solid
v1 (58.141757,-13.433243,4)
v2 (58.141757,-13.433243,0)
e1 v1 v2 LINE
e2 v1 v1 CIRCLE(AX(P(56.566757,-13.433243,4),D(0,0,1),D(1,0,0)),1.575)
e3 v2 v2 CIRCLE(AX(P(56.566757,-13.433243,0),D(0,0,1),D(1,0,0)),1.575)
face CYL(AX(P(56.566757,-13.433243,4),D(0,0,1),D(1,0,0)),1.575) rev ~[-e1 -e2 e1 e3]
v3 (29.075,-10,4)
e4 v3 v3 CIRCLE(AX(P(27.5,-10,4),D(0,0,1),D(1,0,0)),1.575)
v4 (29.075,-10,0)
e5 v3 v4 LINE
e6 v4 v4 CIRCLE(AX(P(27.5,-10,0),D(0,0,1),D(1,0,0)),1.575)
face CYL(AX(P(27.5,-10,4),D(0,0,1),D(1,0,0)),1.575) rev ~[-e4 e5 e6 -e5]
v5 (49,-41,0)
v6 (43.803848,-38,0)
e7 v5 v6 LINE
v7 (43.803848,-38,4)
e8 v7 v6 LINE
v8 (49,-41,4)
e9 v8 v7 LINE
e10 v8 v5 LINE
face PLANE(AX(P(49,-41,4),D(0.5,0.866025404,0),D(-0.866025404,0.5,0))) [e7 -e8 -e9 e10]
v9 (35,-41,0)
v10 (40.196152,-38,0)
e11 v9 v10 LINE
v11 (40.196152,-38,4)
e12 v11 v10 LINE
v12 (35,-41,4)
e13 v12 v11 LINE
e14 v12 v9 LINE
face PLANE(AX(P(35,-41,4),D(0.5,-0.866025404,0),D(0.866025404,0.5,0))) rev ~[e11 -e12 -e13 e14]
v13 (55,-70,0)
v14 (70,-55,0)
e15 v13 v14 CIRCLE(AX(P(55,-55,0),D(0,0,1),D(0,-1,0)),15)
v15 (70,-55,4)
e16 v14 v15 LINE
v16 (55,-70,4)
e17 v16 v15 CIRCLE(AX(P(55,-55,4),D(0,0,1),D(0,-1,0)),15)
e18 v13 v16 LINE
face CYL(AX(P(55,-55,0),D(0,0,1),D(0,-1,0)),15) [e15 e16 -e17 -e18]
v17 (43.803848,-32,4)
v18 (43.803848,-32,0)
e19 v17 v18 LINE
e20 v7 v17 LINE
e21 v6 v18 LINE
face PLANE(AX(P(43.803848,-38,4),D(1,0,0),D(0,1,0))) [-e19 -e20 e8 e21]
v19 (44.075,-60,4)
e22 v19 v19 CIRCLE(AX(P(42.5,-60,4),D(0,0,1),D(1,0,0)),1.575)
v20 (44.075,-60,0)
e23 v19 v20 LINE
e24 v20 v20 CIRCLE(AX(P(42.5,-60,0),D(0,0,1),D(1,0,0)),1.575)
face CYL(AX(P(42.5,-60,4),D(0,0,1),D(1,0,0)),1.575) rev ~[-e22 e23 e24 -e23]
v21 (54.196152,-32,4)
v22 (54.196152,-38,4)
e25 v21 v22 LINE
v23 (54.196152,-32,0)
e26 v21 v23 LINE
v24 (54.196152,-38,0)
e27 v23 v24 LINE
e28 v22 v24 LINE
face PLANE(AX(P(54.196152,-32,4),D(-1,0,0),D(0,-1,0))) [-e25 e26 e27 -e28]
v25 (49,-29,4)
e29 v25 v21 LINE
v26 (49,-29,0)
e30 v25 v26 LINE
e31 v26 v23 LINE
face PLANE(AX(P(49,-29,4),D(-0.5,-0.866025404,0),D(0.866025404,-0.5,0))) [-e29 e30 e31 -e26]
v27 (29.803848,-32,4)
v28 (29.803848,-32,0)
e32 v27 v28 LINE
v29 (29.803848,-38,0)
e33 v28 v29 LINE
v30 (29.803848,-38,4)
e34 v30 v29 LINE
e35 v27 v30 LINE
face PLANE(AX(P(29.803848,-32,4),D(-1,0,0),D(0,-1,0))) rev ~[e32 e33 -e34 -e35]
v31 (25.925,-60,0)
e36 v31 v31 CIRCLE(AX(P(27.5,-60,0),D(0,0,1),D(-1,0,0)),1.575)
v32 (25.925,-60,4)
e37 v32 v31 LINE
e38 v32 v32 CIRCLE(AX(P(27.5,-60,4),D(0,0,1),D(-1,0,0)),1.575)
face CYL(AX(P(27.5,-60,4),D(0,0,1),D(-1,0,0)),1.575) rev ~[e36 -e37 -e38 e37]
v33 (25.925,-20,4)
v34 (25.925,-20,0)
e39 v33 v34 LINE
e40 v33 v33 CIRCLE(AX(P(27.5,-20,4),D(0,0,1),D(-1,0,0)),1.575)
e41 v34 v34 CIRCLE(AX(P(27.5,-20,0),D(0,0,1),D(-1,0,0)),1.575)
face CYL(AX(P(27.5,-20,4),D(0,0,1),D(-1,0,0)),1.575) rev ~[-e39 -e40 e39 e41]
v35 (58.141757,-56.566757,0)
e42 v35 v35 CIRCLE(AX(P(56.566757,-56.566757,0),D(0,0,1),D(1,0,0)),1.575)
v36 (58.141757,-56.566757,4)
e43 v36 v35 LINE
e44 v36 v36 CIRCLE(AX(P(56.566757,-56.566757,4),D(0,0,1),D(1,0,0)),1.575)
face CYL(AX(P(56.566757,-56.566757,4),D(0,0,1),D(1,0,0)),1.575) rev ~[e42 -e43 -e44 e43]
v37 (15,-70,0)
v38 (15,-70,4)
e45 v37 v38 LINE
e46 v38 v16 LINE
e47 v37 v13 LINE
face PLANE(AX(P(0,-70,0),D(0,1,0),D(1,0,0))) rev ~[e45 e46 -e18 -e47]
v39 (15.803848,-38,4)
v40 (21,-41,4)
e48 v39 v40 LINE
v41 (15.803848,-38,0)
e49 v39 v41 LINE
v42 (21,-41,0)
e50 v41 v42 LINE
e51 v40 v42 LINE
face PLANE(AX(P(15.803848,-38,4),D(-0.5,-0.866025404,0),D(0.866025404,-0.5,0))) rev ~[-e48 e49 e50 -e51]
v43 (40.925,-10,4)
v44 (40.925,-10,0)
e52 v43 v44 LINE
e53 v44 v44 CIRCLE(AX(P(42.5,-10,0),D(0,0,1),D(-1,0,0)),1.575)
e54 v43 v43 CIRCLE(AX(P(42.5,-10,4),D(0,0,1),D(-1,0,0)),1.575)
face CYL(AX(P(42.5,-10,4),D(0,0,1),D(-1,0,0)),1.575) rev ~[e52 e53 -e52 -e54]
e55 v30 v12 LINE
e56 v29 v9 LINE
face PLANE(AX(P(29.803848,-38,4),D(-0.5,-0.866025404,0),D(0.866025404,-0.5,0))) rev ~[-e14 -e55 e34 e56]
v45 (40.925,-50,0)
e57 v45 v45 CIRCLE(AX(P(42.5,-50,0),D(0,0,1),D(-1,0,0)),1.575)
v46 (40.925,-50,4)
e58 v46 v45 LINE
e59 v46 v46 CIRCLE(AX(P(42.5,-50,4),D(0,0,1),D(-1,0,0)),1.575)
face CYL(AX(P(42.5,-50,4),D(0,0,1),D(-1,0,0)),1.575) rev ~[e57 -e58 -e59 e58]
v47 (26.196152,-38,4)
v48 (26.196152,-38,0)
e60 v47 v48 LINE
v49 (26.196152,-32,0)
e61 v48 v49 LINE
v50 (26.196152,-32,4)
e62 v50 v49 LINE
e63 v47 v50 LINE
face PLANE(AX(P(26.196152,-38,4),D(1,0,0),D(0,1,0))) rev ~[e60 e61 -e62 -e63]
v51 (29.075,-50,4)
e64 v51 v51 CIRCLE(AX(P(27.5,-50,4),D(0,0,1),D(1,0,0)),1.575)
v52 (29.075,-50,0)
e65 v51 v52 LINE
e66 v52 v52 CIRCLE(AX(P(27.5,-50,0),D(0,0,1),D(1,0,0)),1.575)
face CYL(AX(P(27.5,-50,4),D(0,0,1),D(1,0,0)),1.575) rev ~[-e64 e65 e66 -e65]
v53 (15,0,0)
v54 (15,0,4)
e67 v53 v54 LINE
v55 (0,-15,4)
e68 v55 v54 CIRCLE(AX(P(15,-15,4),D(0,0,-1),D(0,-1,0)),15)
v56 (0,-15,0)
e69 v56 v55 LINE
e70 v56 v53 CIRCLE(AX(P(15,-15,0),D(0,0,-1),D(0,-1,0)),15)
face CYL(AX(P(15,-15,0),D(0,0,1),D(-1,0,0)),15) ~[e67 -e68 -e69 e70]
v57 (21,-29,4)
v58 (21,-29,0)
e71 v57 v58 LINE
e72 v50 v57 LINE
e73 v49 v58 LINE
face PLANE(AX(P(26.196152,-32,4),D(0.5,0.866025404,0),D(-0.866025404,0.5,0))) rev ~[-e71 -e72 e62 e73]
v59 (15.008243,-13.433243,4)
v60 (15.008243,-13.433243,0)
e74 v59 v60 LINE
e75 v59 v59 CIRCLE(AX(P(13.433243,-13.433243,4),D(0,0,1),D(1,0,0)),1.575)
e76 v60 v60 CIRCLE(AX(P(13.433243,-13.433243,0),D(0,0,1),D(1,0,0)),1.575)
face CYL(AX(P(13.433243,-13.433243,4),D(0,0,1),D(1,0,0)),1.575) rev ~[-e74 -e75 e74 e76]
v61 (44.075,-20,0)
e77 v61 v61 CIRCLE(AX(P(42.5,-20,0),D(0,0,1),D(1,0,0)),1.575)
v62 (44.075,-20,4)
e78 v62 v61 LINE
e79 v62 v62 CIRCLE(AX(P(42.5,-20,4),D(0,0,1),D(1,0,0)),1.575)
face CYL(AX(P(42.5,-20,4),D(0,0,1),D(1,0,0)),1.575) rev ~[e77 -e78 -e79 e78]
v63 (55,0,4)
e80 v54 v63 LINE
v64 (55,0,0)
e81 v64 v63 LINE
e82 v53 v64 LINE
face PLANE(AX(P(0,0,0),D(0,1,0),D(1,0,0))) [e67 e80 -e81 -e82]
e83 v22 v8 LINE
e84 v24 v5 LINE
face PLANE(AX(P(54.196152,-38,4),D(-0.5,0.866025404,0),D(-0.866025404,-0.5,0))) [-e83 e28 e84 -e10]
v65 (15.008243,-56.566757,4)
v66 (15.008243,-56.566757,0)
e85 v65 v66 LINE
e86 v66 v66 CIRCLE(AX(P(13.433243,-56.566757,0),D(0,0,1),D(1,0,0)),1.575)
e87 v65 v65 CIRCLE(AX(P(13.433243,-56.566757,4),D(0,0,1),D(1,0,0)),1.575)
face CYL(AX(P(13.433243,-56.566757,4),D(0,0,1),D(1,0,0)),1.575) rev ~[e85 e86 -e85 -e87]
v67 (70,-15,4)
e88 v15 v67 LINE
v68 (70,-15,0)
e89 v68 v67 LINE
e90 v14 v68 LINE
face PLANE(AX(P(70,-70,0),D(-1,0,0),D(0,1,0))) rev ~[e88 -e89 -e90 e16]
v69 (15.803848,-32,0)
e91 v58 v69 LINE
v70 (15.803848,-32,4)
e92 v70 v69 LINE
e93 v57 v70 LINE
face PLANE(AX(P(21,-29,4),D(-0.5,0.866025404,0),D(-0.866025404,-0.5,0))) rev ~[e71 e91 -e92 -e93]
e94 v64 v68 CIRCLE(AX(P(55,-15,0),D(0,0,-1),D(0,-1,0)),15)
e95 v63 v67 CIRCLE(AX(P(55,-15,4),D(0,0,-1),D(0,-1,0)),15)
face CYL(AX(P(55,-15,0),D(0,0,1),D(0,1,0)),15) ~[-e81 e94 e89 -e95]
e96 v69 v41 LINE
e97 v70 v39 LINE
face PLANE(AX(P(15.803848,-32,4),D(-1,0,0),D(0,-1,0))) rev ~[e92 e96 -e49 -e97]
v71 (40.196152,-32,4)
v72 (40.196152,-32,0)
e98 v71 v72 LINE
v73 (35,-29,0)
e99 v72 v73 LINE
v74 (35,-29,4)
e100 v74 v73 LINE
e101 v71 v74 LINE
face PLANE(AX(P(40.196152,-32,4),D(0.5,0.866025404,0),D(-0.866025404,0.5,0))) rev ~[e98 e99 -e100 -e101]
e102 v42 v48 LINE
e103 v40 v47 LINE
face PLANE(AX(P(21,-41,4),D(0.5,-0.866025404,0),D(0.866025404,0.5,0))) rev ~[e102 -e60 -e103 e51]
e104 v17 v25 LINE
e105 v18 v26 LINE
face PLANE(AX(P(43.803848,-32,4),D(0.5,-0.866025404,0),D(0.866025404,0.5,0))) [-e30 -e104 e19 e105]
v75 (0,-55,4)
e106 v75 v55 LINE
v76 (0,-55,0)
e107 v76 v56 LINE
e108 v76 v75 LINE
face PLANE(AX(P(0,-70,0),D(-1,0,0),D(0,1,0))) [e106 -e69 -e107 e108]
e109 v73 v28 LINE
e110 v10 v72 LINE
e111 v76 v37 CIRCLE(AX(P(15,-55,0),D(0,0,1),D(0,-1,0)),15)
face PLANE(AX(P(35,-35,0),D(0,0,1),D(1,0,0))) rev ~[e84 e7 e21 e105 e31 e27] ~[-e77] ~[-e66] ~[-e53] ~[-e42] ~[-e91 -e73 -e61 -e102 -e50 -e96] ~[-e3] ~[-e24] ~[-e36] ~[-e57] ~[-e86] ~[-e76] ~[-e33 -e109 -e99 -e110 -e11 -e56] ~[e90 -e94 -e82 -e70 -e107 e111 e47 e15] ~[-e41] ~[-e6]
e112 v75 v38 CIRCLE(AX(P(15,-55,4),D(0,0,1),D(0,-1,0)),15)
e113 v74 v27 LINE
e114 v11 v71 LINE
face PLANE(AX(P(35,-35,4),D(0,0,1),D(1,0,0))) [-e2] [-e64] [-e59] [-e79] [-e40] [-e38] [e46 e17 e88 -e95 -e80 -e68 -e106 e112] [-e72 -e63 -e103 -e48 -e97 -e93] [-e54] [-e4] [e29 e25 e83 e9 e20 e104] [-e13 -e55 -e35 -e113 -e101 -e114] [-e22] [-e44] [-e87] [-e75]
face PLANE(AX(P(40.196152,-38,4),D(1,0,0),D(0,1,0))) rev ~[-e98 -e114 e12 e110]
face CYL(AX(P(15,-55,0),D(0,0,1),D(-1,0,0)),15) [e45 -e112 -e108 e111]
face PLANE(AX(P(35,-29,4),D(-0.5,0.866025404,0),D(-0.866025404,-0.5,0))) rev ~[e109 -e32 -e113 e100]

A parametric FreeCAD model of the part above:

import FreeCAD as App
import Part
import Sketcher

V = App.Vector
Q = App.Units.Quantity


def edges_at(feature, points):
    """Names of the edges that pass closest to the given points."""
    edges = feature.Shape.Edges
    near = lambda p: min(range(len(edges)), key=lambda i: edges[i].distToShape(Part.Vertex(*p))[0])
    return sorted({f"Edge{near(p) + 1}" for p in points})


def add_polygon(sketch, points):
    """Adds a closed chain of lines whose ends are joined by coincident constraints."""
    first, n = sketch.GeometryCount, len(points)
    for a, b in zip(points, points[1:] + points[:1]):
        sketch.addGeometry(Part.LineSegment(App.Vector(*a, 0), App.Vector(*b, 0)), False)
    for i in range(n):
        sketch.addConstraint(Sketcher.Constraint("Coincident", first + i, 2, first + (i + 1) % n, 1))

doc = App.newDocument("Part")
body = doc.addObject("PartDesign::Body", "Body")

# Sketch on XY plane
sketch1 = body.newObject("Sketcher::SketchObject", "Sketch")
sketch1.AttachmentSupport = (doc.getObject("XY_Plane"), [""])
sketch1.MapMode = "FlatFace"
add_polygon(sketch1, [(0, 0), (0, -70), (70, -70), (70, 0)])  # lines 0-3
sketch1.addConstraint([
    Sketcher.Constraint("Vertical", 0),
    Sketcher.Constraint("Horizontal", 1),
    Sketcher.Constraint("Vertical", 2),
    Sketcher.Constraint("Horizontal", 3),
    Sketcher.Constraint("Coincident", 3, 2, -1, 1),
    Sketcher.Constraint("Equal", 3, 0),
    Sketcher.Constraint("DistanceX", 1, 1, 1, 2, Q("70 mm")),
])
pad1 = body.newObject("PartDesign::Pad", "Pad")
pad1.Profile = sketch1
pad1.Length = 4

# Sketch on XY plane
sketch2 = body.newObject("Sketcher::SketchObject", "Sketch001")
sketch2.AttachmentSupport = (doc.getObject("XY_Plane"), [""])
sketch2.MapMode = "FlatFace"
sketch2.AttachmentOffset = App.Placement(V(0, 0, 4), App.Rotation())
sketch2.addGeometry(Part.Circle(V(27.5, -10, 0), V(0, 0, 1), 1.575), False)  # 0
sketch2.addGeometry(Part.Circle(V(42.5, -10, 0), V(0, 0, 1), 1.575), False)  # 1
sketch2.addGeometry(Part.Circle(V(42.5, -20, 0), V(0, 0, 1), 1.575), False)  # 2
sketch2.addGeometry(Part.Circle(V(27.5, -20, 0), V(0, 0, 1), 1.575), False)  # 3
sketch2.addGeometry(Part.Circle(V(27.5, -50, 0), V(0, 0, 1), 1.575), False)  # 4
sketch2.addGeometry(Part.Circle(V(42.5, -50, 0), V(0, 0, 1), 1.575), False)  # 5
sketch2.addGeometry(Part.Circle(V(42.5, -60, 0), V(0, 0, 1), 1.575), False)  # 6
sketch2.addGeometry(Part.Circle(V(27.5, -60, 0), V(0, 0, 1), 1.575), False)  # 7
sketch2.addGeometry(Part.Circle(V(13.433243, -13.433243, 0), V(0, 0, 1), 1.575), False)  # 8
sketch2.addGeometry(Part.Circle(V(56.566757, -13.433243, 0), V(0, 0, 1), 1.575), False)  # 9
sketch2.addGeometry(Part.Circle(V(56.566757, -56.566757, 0), V(0, 0, 1), 1.575), False)  # 10
sketch2.addGeometry(Part.Circle(V(13.433243, -56.566757, 0), V(0, 0, 1), 1.575), False)  # 11
add_polygon(sketch2, [(21, -29), (15.803848, -32), (15.803848, -38), (21, -41), (26.196152, -38), (26.196152, -32)])  # lines 12-17
add_polygon(sketch2, [(35, -41), (40.196152, -38), (40.196152, -32), (35, -29), (29.803848, -32), (29.803848, -38)])  # lines 18-23
add_polygon(sketch2, [(43.803848, -32), (43.803848, -38), (49, -41), (54.196152, -38), (54.196152, -32), (49, -29)])  # lines 24-29
sketch2.addConstraint([
    Sketcher.Constraint("Vertical", 13),
    Sketcher.Constraint("Vertical", 16),
    Sketcher.Constraint("Vertical", 19),
    Sketcher.Constraint("Vertical", 22),
    Sketcher.Constraint("Vertical", 24),
    Sketcher.Constraint("Vertical", 27),
    Sketcher.Constraint("Equal", 0, 1),
    Sketcher.Constraint("Equal", 1, 2),
    Sketcher.Constraint("Equal", 2, 3),
    Sketcher.Constraint("Equal", 3, 4),
    Sketcher.Constraint("Equal", 4, 5),
    Sketcher.Constraint("Equal", 5, 6),
    Sketcher.Constraint("Equal", 6, 7),
    Sketcher.Constraint("Equal", 7, 8),
    Sketcher.Constraint("Equal", 8, 9),
    Sketcher.Constraint("Equal", 9, 10),
    Sketcher.Constraint("Equal", 10, 11),
    Sketcher.Constraint("Parallel", 12, 15),
    Sketcher.Constraint("Parallel", 14, 17),
    Sketcher.Constraint("Parallel", 15, 18),
    Sketcher.Constraint("Parallel", 17, 20),
    Sketcher.Constraint("Parallel", 18, 21),
    Sketcher.Constraint("Parallel", 20, 23),
    Sketcher.Constraint("Parallel", 23, 25),
    Sketcher.Constraint("Parallel", 21, 26),
    Sketcher.Constraint("Parallel", 25, 28),
    Sketcher.Constraint("Parallel", 26, 29),
    Sketcher.Constraint("Horizontal", 0, 3, 1, 3),
    Sketcher.Constraint("Horizontal", 2, 3, 3, 3),
    Sketcher.Constraint("Horizontal", 4, 3, 5, 3),
    Sketcher.Constraint("Horizontal", 6, 3, 7, 3),
    Sketcher.Constraint("Horizontal", 8, 3, 9, 3),
    Sketcher.Constraint("Horizontal", 10, 3, 11, 3),
    Sketcher.Constraint("Horizontal", 13, 2, 15, 2),
    Sketcher.Constraint("Horizontal", 12, 2, 16, 2),
    Sketcher.Constraint("Horizontal", 15, 2, 18, 2),
    Sketcher.Constraint("Horizontal", 16, 2, 19, 2),
    Sketcher.Constraint("Horizontal", 17, 2, 20, 2),
    Sketcher.Constraint("Horizontal", 19, 2, 21, 2),
    Sketcher.Constraint("Horizontal", 18, 2, 22, 2),
    Sketcher.Constraint("Horizontal", 22, 2, 24, 2),
    Sketcher.Constraint("Horizontal", 23, 2, 25, 2),
    Sketcher.Constraint("Horizontal", 24, 2, 26, 2),
    Sketcher.Constraint("Horizontal", 21, 2, 27, 2),
    Sketcher.Constraint("Horizontal", 20, 2, 28, 2),
    Sketcher.Constraint("Vertical", 1, 3, 2, 3),
    Sketcher.Constraint("Vertical", 0, 3, 3, 3),
    Sketcher.Constraint("Vertical", 3, 3, 4, 3),
    Sketcher.Constraint("Vertical", 2, 3, 5, 3),
    Sketcher.Constraint("Vertical", 5, 3, 6, 3),
    Sketcher.Constraint("Vertical", 4, 3, 7, 3),
    Sketcher.Constraint("Vertical", 9, 3, 10, 3),
    Sketcher.Constraint("Vertical", 8, 3, 11, 3),
    Sketcher.Constraint("Vertical", 14, 2, 17, 2),
    Sketcher.Constraint("Diameter", 0, Q("3.15 mm")),
    Sketcher.Constraint("DistanceY", 13, 2, 13, 1, Q("6 mm")),
    Sketcher.Constraint("Angle", 12, Q("-150 deg")),
    Sketcher.Constraint("Distance", 12, Q("6 mm")),
    Sketcher.Constraint("DistanceY", 0, 3, -1, 1, Q("10 mm")),
    Sketcher.Constraint("DistanceY", 2, 3, -1, 1, Q("20 mm")),
    Sketcher.Constraint("DistanceY", 4, 3, -1, 1, Q("50 mm")),
    Sketcher.Constraint("DistanceY", 6, 3, -1, 1, Q("60 mm")),
    Sketcher.Constraint("DistanceY", 12, 2, -1, 1, Q("32 mm")),
    Sketcher.Constraint("DistanceX", -1, 1, 14, 2, Q("21 mm")),
    Sketcher.Constraint("DistanceX", -1, 1, 20, 2, Q("35 mm")),
    Sketcher.Constraint("DistanceX", -1, 1, 25, 2, Q("49 mm")),
    Sketcher.Constraint("DistanceX", 0, 3, 1, 3, Q("15 mm")),
    Sketcher.Constraint("DistanceX", -1, 1, 0, 3, Q("27.5 mm")),
    Sketcher.Constraint("DistanceX", -1, 1, 8, 3, Q("13.433243 mm")),
    Sketcher.Constraint("DistanceY", 8, 3, -1, 1, Q("13.433243 mm")),
    Sketcher.Constraint("DistanceX", -1, 1, 9, 3, Q("56.566757 mm")),
    Sketcher.Constraint("DistanceY", 10, 3, -1, 1, Q("56.566757 mm")),
])
pocket1 = body.newObject("PartDesign::Pocket", "Pocket")
pocket1.Profile = sketch2
pocket1.Type = "ThroughAll"
doc.recompute()

fillet = body.newObject("PartDesign::Fillet", "Fillet")
fillet.Base = (pocket1, edges_at(pocket1, [
    (0, 0, 2),
    (70, 0, 2),
    (70, -70, 2),
    (0, -70, 2),
]))
fillet.Radius = 15

doc.recompute()
